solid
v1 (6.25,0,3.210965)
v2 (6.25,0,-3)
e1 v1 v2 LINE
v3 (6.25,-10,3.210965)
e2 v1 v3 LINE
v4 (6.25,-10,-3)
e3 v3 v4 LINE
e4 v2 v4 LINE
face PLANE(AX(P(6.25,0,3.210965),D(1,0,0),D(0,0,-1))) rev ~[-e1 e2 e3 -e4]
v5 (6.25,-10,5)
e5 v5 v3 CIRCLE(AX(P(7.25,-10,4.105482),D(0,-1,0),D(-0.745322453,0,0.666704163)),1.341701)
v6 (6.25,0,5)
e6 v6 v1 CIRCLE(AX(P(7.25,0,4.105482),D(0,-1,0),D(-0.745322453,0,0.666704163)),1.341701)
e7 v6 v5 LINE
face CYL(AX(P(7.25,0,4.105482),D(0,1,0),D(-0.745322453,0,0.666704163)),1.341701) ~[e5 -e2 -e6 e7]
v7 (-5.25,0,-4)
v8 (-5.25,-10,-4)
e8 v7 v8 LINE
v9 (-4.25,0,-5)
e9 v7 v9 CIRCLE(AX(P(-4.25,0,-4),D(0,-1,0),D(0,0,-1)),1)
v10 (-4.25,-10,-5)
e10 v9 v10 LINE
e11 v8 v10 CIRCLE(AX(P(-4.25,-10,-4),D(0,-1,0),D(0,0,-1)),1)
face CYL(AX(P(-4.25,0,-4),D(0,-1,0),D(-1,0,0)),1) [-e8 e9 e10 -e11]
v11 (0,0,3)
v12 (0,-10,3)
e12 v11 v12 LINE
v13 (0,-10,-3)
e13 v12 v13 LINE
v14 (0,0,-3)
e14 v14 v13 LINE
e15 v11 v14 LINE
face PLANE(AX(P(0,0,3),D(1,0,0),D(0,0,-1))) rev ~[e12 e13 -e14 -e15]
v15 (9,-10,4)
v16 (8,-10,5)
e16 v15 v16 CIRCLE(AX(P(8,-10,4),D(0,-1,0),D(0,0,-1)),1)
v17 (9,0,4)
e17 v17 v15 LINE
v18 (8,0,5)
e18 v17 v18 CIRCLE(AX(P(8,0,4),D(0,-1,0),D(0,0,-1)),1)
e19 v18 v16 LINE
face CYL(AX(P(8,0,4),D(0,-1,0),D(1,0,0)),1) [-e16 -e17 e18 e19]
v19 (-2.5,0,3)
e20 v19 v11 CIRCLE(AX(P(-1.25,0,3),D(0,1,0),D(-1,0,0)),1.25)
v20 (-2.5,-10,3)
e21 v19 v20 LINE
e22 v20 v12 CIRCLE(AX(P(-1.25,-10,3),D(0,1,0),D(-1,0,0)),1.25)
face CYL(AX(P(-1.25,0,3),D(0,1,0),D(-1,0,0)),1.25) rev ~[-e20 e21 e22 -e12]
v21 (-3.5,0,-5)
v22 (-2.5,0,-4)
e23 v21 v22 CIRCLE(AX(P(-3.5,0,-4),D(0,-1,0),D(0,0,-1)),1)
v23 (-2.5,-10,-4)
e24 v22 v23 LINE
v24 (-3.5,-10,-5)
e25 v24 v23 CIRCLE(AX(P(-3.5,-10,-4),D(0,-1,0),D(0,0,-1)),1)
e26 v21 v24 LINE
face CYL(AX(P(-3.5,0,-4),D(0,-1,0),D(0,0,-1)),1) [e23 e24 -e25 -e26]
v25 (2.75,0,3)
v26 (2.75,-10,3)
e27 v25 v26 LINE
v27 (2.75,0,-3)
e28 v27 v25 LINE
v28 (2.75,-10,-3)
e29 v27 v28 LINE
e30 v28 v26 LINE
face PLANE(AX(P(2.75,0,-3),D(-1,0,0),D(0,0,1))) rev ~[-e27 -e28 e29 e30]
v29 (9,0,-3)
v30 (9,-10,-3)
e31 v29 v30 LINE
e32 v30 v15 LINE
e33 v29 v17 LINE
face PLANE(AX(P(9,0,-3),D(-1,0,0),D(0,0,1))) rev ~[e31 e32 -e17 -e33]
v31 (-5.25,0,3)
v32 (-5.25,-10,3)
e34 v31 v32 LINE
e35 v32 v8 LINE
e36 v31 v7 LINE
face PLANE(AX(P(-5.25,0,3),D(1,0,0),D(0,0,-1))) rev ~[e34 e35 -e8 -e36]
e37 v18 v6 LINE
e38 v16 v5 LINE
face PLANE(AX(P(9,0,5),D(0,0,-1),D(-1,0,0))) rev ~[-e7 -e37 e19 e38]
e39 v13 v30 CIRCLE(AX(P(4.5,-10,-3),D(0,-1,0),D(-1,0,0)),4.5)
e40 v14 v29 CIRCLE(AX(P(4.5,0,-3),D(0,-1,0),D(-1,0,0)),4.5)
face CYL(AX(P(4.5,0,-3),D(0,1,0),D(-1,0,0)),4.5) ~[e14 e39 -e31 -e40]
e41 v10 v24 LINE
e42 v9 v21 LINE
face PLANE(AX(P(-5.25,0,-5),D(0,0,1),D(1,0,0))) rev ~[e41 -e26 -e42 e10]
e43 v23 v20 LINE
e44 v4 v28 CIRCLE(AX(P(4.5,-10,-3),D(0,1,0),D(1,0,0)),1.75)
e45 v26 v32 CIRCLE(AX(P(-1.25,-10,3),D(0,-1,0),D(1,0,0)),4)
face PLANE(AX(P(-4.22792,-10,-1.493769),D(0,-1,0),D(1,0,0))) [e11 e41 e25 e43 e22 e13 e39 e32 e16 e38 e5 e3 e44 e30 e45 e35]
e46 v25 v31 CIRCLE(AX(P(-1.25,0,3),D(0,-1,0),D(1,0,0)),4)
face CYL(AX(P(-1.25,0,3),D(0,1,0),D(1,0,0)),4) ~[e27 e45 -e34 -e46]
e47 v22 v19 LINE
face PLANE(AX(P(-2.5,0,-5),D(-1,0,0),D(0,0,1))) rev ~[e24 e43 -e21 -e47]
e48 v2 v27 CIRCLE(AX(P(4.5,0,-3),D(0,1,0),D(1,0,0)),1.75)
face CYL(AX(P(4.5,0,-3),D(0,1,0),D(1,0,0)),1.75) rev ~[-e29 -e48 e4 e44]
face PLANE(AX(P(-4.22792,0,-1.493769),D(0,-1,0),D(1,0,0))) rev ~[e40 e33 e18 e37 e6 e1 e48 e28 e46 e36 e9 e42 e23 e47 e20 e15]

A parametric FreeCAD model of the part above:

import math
import FreeCAD as App
import Part
import Sketcher


def edges_at(feature, points):
    """Names of the edges that pass closest to the given points."""
    edges = feature.Shape.Edges
    near = lambda p: min(range(len(edges)), key=lambda i: edges[i].distToShape(Part.Vertex(*p))[0])
    return sorted({f"Edge{near(p) + 1}" for p in points})

doc = App.newDocument("Part")
body = doc.addObject("PartDesign::Body", "Body")

# Sketch on XZ plane
sketch1 = doc.addObject("Sketcher::SketchObject", "Sketch")
body.addObject(sketch1)
sketch1.AttachmentSupport = (doc.XZ_Plane, [""])
sketch1.MapMode = "FlatFace"
sketch1.addGeometry([
    Part.LineSegment(App.Vector(0, 3, 0), App.Vector(0, -3, 0)),  # 0
    Part.ArcOfCircle(Part.Circle(App.Vector(4.5, -3, 0), App.Vector(0, 0, 1), 4.5), math.radians(180), math.radians(360)),  # 1
    Part.LineSegment(App.Vector(9, -3, 0), App.Vector(9, 5, 0)),  # 2
    Part.LineSegment(App.Vector(9, 5, 0), App.Vector(6.2, 5, 0)),  # 3
    Part.ArcOfCircle(Part.Circle(App.Vector(7.2, 4.1, 0), App.Vector(0, 0, 1), 1.3), math.radians(138), math.radians(222)),  # 4
    Part.LineSegment(App.Vector(6.2, 3.2, 0), App.Vector(6.2, -3, 0)),  # 5
    Part.ArcOfCircle(Part.Circle(App.Vector(4.5, -3, 0), App.Vector(0, 0, 1), 1.8), math.radians(180), math.radians(360)),  # 6
    Part.LineSegment(App.Vector(2.8, -3, 0), App.Vector(2.8, 3, 0)),  # 7
    Part.ArcOfCircle(Part.Circle(App.Vector(-1.2, 3, 0), App.Vector(0, 0, 1), 4), math.radians(0), math.radians(180)),  # 8
    Part.LineSegment(App.Vector(-5.2, 3, 0), App.Vector(-5.2, -5, 0)),  # 9
    Part.LineSegment(App.Vector(-5.2, -5, 0), App.Vector(-2.5, -5, 0)),  # 10
    Part.LineSegment(App.Vector(-2.5, -5, 0), App.Vector(-2.5, 3, 0)),  # 11
    Part.ArcOfCircle(Part.Circle(App.Vector(-1.2, 3, 0), App.Vector(0, 0, 1), 1.2), math.radians(0), math.radians(180)),  # 12
], False)
sketch1.addConstraint([
    Sketcher.Constraint("Tangent", 0, 2, 1, 1),
    Sketcher.Constraint("Tangent", 1, 2, 2, 1),
    Sketcher.Constraint("Coincident", 2, 2, 3, 1),
    Sketcher.Constraint("Coincident", 3, 2, 4, 1),
    Sketcher.Constraint("Coincident", 4, 2, 5, 1),
    Sketcher.Constraint("Tangent", 5, 2, 6, 2),
    Sketcher.Constraint("Tangent", 6, 1, 7, 1),
    Sketcher.Constraint("Tangent", 7, 2, 8, 1),
    Sketcher.Constraint("Tangent", 8, 2, 9, 1),
    Sketcher.Constraint("Coincident", 9, 2, 10, 1),
    Sketcher.Constraint("Coincident", 10, 2, 11, 1),
    Sketcher.Constraint("Tangent", 11, 2, 12, 2),
    Sketcher.Constraint("Tangent", 12, 1, 0, 1),
    Sketcher.Constraint("Vertical", 0),
    Sketcher.Constraint("Vertical", 2),
    Sketcher.Constraint("Horizontal", 3),
    Sketcher.Constraint("Vertical", 5),
    Sketcher.Constraint("Vertical", 7),
    Sketcher.Constraint("Vertical", 9),
    Sketcher.Constraint("Horizontal", 10),
    Sketcher.Constraint("Vertical", 11),
    Sketcher.Constraint("Coincident", 6, 3, 1, 3),
    Sketcher.Constraint("Coincident", 12, 3, 8, 3),
    Sketcher.Constraint("Symmetric", 0, 2, 12, 1, -1, 1),
    Sketcher.Constraint("Vertical", 3, 2, 4, 2),
    Sketcher.Constraint("Equal", 2, 9),
    Sketcher.Constraint("Radius", 8, 4.0),
    Sketcher.Constraint("Radius", 1, 4.5),
    Sketcher.Constraint("DistanceY", 0, 2, 0, 1, 6.0),
    Sketcher.Constraint("DistanceY", 2, 1, 2, 2, 8.0),
    Sketcher.Constraint("Radius", 6, 1.75),
    Sketcher.Constraint("DistanceX", 3, 2, 4, 3, 1.0),
    Sketcher.Constraint("Radius", 4, 1.341701),
])
pad1 = doc.addObject("PartDesign::Pad", "Pad")
body.addObject(pad1)
pad1.Profile = sketch1
pad1.Length = 10
doc.recompute()

fillet = doc.addObject("PartDesign::Fillet", "Fillet")
body.addObject(fillet)
fillet.Base = (pad1, edges_at(pad1, [(-2.5, -5, -5), (-5.25, -5, -5), (9, -5, 5)]))
fillet.Radius = 1

doc.recompute()
